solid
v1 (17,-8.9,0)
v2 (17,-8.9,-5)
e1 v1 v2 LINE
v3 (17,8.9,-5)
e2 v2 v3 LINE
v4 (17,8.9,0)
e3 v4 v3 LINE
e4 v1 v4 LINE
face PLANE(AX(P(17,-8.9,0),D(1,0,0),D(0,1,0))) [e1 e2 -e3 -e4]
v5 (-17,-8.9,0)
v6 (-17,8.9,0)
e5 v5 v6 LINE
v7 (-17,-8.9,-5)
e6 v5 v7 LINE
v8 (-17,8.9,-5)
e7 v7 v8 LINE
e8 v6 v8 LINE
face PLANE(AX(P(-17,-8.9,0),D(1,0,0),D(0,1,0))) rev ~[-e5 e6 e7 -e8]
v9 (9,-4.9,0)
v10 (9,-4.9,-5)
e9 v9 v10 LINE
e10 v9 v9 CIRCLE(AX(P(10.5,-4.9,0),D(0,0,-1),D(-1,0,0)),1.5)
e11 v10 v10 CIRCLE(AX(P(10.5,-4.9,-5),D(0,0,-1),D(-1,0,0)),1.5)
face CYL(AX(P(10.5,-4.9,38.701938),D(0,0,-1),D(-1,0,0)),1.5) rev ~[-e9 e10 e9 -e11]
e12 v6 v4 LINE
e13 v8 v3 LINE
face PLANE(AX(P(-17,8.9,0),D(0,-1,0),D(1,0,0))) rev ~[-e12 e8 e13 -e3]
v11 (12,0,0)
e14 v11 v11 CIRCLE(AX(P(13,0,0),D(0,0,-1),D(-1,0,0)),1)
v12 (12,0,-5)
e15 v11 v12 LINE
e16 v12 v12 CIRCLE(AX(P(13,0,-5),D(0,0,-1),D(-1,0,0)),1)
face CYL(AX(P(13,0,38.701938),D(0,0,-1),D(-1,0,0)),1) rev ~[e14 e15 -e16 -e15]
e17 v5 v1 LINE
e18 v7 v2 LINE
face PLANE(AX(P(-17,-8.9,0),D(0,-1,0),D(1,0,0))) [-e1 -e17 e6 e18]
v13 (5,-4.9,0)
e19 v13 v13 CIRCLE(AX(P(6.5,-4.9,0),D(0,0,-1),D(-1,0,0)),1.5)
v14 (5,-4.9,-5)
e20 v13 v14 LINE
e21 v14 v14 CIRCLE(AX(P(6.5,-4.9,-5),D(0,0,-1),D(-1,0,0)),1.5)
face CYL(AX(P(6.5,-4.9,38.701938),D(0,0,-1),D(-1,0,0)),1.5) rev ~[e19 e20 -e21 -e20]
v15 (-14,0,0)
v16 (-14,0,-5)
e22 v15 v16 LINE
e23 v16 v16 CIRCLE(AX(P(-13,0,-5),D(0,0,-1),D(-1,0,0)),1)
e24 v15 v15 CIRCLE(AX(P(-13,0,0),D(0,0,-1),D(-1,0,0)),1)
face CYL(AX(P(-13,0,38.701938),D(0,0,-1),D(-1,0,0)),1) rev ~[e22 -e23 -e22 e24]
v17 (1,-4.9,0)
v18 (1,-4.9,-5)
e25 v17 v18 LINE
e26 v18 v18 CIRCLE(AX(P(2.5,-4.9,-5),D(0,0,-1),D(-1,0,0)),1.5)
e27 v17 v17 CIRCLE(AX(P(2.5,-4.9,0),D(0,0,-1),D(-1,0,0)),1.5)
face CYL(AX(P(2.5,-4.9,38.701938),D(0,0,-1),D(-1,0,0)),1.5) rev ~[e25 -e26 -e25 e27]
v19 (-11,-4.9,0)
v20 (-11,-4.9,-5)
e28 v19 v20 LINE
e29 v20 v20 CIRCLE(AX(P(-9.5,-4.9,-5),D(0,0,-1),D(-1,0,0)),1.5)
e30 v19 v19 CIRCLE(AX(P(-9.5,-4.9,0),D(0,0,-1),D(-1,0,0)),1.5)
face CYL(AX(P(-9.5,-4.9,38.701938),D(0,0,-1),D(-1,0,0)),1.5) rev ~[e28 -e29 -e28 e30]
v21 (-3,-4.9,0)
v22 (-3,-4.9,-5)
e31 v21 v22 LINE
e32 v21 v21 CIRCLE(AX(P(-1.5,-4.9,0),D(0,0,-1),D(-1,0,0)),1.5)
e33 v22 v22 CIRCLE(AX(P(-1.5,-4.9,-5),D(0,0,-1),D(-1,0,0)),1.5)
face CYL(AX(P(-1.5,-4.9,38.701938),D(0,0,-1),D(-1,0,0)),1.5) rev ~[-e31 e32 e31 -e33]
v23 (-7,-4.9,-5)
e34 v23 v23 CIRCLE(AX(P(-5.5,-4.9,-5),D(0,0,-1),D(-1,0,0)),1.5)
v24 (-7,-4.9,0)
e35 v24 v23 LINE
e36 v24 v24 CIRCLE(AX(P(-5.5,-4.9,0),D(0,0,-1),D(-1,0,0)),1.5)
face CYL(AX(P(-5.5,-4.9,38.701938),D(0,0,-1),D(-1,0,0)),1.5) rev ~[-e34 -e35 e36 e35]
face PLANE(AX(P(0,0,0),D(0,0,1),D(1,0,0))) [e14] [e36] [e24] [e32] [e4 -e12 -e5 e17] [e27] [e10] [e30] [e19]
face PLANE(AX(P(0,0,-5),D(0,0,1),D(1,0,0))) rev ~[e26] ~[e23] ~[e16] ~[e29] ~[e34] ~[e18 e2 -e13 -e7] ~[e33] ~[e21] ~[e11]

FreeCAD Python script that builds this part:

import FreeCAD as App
import Part
import Sketcher


def add_polygon(sketch, points):
    """Adds a closed chain of lines whose ends are joined by coincident constraints."""
    first, n = sketch.GeometryCount, len(points)
    for a, b in zip(points, points[1:] + points[:1]):
        sketch.addGeometry(Part.LineSegment(App.Vector(*a, 0), App.Vector(*b, 0)), False)
    for i in range(n):
        sketch.addConstraint(Sketcher.Constraint("Coincident", first + i, 2, first + (i + 1) % n, 1))

doc = App.newDocument("Part")
body = doc.addObject("PartDesign::Body", "Body")

# Sketch on XY plane
sketch1 = body.newObject("Sketcher::SketchObject", "Sketch")
sketch1.AttachmentSupport = (doc.getObject("XY_Plane"), [""])
sketch1.MapMode = "FlatFace"
add_polygon(sketch1, [(-17, 9), (-17, -9), (17, -9), (17, 9)])  # lines 0-3
sketch1.addConstraint([
    Sketcher.Constraint("Vertical", 0),
    Sketcher.Constraint("Horizontal", 1),
    Sketcher.Constraint("Vertical", 2),
    Sketcher.Constraint("Horizontal", 3),
    Sketcher.Constraint("Symmetric", 0, 2, 2, 2, -1, 1),
    Sketcher.Constraint("DistanceX", 1, 1, 1, 2, 34.0),
    Sketcher.Constraint("DistanceY", 0, 2, 0, 1, 17.8),
])
pad1 = body.newObject("PartDesign::Pad", "Pad")
pad1.Profile = sketch1
pad1.Length = 5
pad1.Reversed = True

# Sketch on XY plane
sketch2 = body.newObject("Sketcher::SketchObject", "Sketch001")
sketch2.AttachmentSupport = (doc.getObject("XY_Plane"), [""])
sketch2.MapMode = "FlatFace"
sketch2.addGeometry(Part.Circle(App.Vector(-13, 0, 0), App.Vector(0, 0, 1), 1), False)
sketch2.addConstraint([
    Sketcher.Constraint("PointOnObject", 0, 3, -1),
    Sketcher.Constraint("Diameter", 0, 2.0),
    Sketcher.Constraint("DistanceX", 0, 3, -1, 1, 13.0),
])
doc.recompute()
hole = body.newObject("PartDesign::Hole", "Hole")
hole.Profile = sketch2
hole.ThreadType = "None"
hole.Diameter = 2
hole.DepthType = "ThroughAll"

# Sketch on XY plane
sketch3 = body.newObject("Sketcher::SketchObject", "Sketch002")
sketch3.AttachmentSupport = (doc.getObject("XY_Plane"), [""])
sketch3.MapMode = "FlatFace"
sketch3.addGeometry(Part.Circle(App.Vector(13, 0, 0), App.Vector(0, 0, 1), 1), False)
sketch3.addConstraint([
    Sketcher.Constraint("PointOnObject", 0, 3, -1),
    Sketcher.Constraint("Diameter", 0, 2.0),
    Sketcher.Constraint("DistanceX", -1, 1, 0, 3, 13.0),
])
doc.recompute()
hole2 = body.newObject("PartDesign::Hole", "Hole001")
hole2.Profile = sketch3
hole2.ThreadType = "None"
hole2.Diameter = 2
hole2.DepthType = "ThroughAll"

# Sketch on XY plane
sketch4 = body.newObject("Sketcher::SketchObject", "Sketch003")
sketch4.AttachmentSupport = (doc.getObject("XY_Plane"), [""])
sketch4.MapMode = "FlatFace"
sketch4.addGeometry([
    Part.Circle(App.Vector(-9.5, -4.9, 0), App.Vector(0, 0, 1), 1.5),  # 0
    Part.Circle(App.Vector(-5.5, -4.9, 0), App.Vector(0, 0, 1), 1.5),  # 1
    Part.Circle(App.Vector(-1.5, -4.9, 0), App.Vector(0, 0, 1), 1.5),  # 2
    Part.Circle(App.Vector(2.5, -4.9, 0), App.Vector(0, 0, 1), 1.5),  # 3
    Part.Circle(App.Vector(6.5, -4.9, 0), App.Vector(0, 0, 1), 1.5),  # 4
    Part.Circle(App.Vector(10.5, -4.9, 0), App.Vector(0, 0, 1), 1.5),  # 5
], False)
sketch4.addConstraint([
    Sketcher.Constraint("Equal", 0, 1),
    Sketcher.Constraint("Equal", 1, 2),
    Sketcher.Constraint("Equal", 2, 3),
    Sketcher.Constraint("Equal", 3, 4),
    Sketcher.Constraint("Equal", 4, 5),
    Sketcher.Constraint("Horizontal", 0, 3, 1, 3),
    Sketcher.Constraint("Horizontal", 1, 3, 2, 3),
    Sketcher.Constraint("Horizontal", 2, 3, 3, 3),
    Sketcher.Constraint("Horizontal", 3, 3, 4, 3),
    Sketcher.Constraint("Horizontal", 4, 3, 5, 3),
    Sketcher.Constraint("Diameter", 0, 3.0),
    Sketcher.Constraint("DistanceX", 0, 3, 1, 3, 4.0),
    Sketcher.Constraint("DistanceX", 1, 3, 2, 3, 4.0),
    Sketcher.Constraint("DistanceX", 2, 3, 3, 3, 4.0),
    Sketcher.Constraint("DistanceX", 3, 3, 4, 3, 4.0),
    Sketcher.Constraint("DistanceX", 4, 3, 5, 3, 4.0),
    Sketcher.Constraint("DistanceX", 0, 3, -1, 1, 9.5),
    Sketcher.Constraint("DistanceY", 0, 3, -1, 1, 4.9),
])
doc.recompute()
hole3 = body.newObject("PartDesign::Hole", "Hole002")
hole3.Profile = sketch4
hole3.ThreadType = "None"
hole3.Diameter = 3
hole3.DepthType = "ThroughAll"

doc.recompute()
